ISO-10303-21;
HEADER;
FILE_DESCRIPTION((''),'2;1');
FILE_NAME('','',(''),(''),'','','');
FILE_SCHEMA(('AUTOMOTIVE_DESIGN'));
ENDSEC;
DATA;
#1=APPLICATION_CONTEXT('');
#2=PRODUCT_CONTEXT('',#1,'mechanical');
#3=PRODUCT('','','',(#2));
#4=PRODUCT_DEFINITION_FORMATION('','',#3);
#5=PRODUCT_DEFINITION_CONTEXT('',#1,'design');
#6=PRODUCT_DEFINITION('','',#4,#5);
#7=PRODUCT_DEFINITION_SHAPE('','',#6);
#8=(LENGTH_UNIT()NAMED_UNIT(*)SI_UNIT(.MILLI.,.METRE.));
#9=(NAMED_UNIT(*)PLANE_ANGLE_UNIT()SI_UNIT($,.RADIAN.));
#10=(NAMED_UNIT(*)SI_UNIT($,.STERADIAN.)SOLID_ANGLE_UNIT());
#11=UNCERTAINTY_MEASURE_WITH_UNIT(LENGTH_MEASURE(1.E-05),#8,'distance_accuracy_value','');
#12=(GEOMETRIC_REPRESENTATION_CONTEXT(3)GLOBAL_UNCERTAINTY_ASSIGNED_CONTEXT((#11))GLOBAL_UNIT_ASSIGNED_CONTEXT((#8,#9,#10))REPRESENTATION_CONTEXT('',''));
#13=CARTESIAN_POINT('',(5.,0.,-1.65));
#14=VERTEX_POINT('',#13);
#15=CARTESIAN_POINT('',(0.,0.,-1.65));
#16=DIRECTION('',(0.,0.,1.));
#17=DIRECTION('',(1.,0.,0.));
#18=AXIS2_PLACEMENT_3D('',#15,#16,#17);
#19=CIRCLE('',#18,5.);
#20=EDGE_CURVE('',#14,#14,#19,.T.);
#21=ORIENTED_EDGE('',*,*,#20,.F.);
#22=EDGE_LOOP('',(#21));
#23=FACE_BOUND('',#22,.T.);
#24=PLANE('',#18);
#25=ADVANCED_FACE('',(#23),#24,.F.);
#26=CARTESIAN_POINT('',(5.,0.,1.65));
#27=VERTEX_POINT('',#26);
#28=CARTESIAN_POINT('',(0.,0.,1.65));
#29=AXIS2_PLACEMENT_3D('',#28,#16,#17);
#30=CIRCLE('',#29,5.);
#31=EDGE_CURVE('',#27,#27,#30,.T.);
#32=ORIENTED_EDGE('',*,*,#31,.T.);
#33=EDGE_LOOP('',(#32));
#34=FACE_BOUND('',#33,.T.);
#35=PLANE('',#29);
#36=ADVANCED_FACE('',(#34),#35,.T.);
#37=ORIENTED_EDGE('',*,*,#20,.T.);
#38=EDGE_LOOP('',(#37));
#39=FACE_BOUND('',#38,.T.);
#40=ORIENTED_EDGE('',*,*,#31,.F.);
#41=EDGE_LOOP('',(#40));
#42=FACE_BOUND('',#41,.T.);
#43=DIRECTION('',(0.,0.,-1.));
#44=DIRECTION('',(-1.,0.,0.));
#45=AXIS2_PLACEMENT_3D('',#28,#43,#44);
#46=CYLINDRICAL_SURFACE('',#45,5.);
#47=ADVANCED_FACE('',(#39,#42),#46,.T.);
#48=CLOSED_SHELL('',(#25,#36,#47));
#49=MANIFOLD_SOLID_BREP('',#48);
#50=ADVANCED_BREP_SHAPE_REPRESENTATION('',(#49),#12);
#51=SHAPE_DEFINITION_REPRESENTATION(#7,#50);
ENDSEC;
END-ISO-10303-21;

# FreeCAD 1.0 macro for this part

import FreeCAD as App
import Part
import Sketcher

doc = App.newDocument("Part")
params = doc.addObject("Spreadsheet::Sheet", "Params")
for row, (alias, value) in enumerate([
    ("sketch1_diameter", "10 mm"),
    ("pad1_length", "3.3 mm"),
], start=1):
    params.set(f"A{row}", alias)
    params.set(f"B{row}", "=" + value)
    params.setAlias(f"B{row}", alias)

body = doc.addObject("PartDesign::Body", "Body")

sketch1 = body.newObject("Sketcher::SketchObject", "Sketch")
sketch1.AttachmentSupport = (doc.getObject("XY_Plane"), [""])
sketch1.MapMode = "FlatFace"
sketch1.addGeometry(Part.Circle(App.Vector(0, 0, 0), App.Vector(0, 0, 1), 5), False)
sketch1.addConstraint(Sketcher.Constraint("Coincident", 0, 3, -1, 1))
sketch1.addConstraint(Sketcher.Constraint("Diameter", 0, 10.0))
sketch1.setExpression("Constraints[1]", "Params.sketch1_diameter")
pad1 = body.newObject("PartDesign::Pad", "Pad")
pad1.Profile = sketch1
pad1.setExpression("Length", "Params.pad1_length")
pad1.Midplane = True

doc.recompute()
